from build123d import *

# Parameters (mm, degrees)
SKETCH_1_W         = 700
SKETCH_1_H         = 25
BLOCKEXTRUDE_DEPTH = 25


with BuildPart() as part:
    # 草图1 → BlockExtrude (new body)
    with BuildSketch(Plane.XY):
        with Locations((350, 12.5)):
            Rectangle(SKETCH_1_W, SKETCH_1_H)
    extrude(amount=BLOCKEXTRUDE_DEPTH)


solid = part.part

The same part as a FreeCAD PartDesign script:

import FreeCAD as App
import Part
import Sketcher

V = App.Vector
Q = App.Units.Quantity

doc = App.newDocument("Part")
body = doc.addObject("PartDesign::Body", "Body")

sketch1 = doc.addObject("Sketcher::SketchObject", "Sketch")
body.addObject(sketch1)
sketch1.AttachmentSupport = (doc.XY_Plane, [""])
sketch1.MapMode = "FlatFace"
sketch1.addGeometry([
    Part.LineSegment(V(0, 25, 0), V(0, 0, 0)),
    Part.LineSegment(V(0, 0, 0), V(700, 0, 0)),
    Part.LineSegment(V(700, 0, 0), V(700, 25, 0)),
    Part.LineSegment(V(700, 25, 0), V(0, 25, 0)),
], False)
sketch1.addConstraint([
    Sketcher.Constraint("Coincident", 0, 2, 1, 1),
    Sketcher.Constraint("Coincident", 1, 2, 2, 1),
    Sketcher.Constraint("Coincident", 2, 2, 3, 1),
    Sketcher.Constraint("Coincident", 3, 2, 0, 1),
    Sketcher.Constraint("Vertical", 0),
    Sketcher.Constraint("Horizontal", 1),
    Sketcher.Constraint("Vertical", 2),
    Sketcher.Constraint("Horizontal", 3),
    Sketcher.Constraint("Coincident", 0, 2, -1, 1),
    Sketcher.Constraint("DistanceX", 1, 1, 1, 2, Q("700 mm")),
    Sketcher.Constraint("DistanceY", 0, 2, 0, 1, Q("25 mm")),
])
pad1 = doc.addObject("PartDesign::Pad", "Pad")
body.addObject(pad1)
pad1.Profile = sketch1
pad1.Length = 25

doc.recompute()
